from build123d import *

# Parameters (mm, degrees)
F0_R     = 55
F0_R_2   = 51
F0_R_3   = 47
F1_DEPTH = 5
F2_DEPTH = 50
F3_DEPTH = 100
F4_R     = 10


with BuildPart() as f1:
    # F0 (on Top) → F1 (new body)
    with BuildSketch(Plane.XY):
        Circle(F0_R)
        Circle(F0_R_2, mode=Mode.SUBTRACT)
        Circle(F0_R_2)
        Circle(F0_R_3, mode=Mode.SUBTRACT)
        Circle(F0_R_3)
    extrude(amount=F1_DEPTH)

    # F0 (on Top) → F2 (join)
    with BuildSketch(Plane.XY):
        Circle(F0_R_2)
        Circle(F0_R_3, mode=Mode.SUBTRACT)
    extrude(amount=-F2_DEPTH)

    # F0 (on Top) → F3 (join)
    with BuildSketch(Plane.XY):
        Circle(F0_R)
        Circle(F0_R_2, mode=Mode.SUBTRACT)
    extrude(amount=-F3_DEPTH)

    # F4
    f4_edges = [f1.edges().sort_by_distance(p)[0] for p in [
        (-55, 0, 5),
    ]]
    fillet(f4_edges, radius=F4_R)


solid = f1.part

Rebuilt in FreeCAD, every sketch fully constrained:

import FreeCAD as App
import Part
import Sketcher


def edges_at(feature, points):
    """Names of the edges that pass closest to the given points."""
    edges = feature.Shape.Edges
    near = lambda p: min(range(len(edges)), key=lambda i: edges[i].distToShape(Part.Vertex(*p))[0])
    return sorted({f"Edge{near(p) + 1}" for p in points})

doc = App.newDocument("Part")
body = doc.addObject("PartDesign::Body", "Body")

# Sketch on XY plane
sketch1 = body.newObject("Sketcher::SketchObject", "Sketch")
sketch1.AttachmentSupport = (doc.getObject("XY_Plane"), [""])
sketch1.MapMode = "FlatFace"
sketch1.addGeometry(Part.Circle(App.Vector(0, 0, 0), App.Vector(0, 0, 1), 55), False)
sketch1.addConstraint([
    Sketcher.Constraint("Coincident", 0, 3, -1, 1),
    Sketcher.Constraint("Diameter", 0, 110.0),
])
pad1 = body.newObject("PartDesign::Pad", "Pad")
pad1.Profile = sketch1
pad1.Length = 5

# Sketch on XY plane
sketch2 = body.newObject("Sketcher::SketchObject", "Sketch001")
sketch2.AttachmentSupport = (doc.getObject("XY_Plane"), [""])
sketch2.MapMode = "FlatFace"
sketch2.addGeometry([
    Part.Circle(App.Vector(0, 0, 0), App.Vector(0, 0, 1), 51),
    Part.Circle(App.Vector(0, 0, 0), App.Vector(0, 0, 1), 47),
], False)
sketch2.addConstraint([
    Sketcher.Constraint("Coincident", 0, 3, -1, 1),
    Sketcher.Constraint("Coincident", 1, 3, -1, 1),
    Sketcher.Constraint("Diameter", 0, 102.0),
    Sketcher.Constraint("Diameter", 1, 94.0),
])
pad2 = body.newObject("PartDesign::Pad", "Pad001")
pad2.Profile = sketch2
pad2.Length = 50
pad2.Reversed = True

# Sketch on XY plane
sketch3 = body.newObject("Sketcher::SketchObject", "Sketch002")
sketch3.AttachmentSupport = (doc.getObject("XY_Plane"), [""])
sketch3.MapMode = "FlatFace"
sketch3.addGeometry([
    Part.Circle(App.Vector(0, 0, 0), App.Vector(0, 0, 1), 55),
    Part.Circle(App.Vector(0, 0, 0), App.Vector(0, 0, 1), 51),
], False)
sketch3.addConstraint([
    Sketcher.Constraint("Coincident", 0, 3, -1, 1),
    Sketcher.Constraint("Coincident", 1, 3, -1, 1),
    Sketcher.Constraint("Diameter", 0, 110.0),
    Sketcher.Constraint("Diameter", 1, 102.0),
])
pad3 = body.newObject("PartDesign::Pad", "Pad002")
pad3.Profile = sketch3
pad3.Length = 100
pad3.Reversed = True
doc.recompute()

fillet = body.newObject("PartDesign::Fillet", "Fillet")
fillet.Base = (pad3, edges_at(pad3, [(-55, 0, 5)]))
fillet.Radius = 10

doc.recompute()
